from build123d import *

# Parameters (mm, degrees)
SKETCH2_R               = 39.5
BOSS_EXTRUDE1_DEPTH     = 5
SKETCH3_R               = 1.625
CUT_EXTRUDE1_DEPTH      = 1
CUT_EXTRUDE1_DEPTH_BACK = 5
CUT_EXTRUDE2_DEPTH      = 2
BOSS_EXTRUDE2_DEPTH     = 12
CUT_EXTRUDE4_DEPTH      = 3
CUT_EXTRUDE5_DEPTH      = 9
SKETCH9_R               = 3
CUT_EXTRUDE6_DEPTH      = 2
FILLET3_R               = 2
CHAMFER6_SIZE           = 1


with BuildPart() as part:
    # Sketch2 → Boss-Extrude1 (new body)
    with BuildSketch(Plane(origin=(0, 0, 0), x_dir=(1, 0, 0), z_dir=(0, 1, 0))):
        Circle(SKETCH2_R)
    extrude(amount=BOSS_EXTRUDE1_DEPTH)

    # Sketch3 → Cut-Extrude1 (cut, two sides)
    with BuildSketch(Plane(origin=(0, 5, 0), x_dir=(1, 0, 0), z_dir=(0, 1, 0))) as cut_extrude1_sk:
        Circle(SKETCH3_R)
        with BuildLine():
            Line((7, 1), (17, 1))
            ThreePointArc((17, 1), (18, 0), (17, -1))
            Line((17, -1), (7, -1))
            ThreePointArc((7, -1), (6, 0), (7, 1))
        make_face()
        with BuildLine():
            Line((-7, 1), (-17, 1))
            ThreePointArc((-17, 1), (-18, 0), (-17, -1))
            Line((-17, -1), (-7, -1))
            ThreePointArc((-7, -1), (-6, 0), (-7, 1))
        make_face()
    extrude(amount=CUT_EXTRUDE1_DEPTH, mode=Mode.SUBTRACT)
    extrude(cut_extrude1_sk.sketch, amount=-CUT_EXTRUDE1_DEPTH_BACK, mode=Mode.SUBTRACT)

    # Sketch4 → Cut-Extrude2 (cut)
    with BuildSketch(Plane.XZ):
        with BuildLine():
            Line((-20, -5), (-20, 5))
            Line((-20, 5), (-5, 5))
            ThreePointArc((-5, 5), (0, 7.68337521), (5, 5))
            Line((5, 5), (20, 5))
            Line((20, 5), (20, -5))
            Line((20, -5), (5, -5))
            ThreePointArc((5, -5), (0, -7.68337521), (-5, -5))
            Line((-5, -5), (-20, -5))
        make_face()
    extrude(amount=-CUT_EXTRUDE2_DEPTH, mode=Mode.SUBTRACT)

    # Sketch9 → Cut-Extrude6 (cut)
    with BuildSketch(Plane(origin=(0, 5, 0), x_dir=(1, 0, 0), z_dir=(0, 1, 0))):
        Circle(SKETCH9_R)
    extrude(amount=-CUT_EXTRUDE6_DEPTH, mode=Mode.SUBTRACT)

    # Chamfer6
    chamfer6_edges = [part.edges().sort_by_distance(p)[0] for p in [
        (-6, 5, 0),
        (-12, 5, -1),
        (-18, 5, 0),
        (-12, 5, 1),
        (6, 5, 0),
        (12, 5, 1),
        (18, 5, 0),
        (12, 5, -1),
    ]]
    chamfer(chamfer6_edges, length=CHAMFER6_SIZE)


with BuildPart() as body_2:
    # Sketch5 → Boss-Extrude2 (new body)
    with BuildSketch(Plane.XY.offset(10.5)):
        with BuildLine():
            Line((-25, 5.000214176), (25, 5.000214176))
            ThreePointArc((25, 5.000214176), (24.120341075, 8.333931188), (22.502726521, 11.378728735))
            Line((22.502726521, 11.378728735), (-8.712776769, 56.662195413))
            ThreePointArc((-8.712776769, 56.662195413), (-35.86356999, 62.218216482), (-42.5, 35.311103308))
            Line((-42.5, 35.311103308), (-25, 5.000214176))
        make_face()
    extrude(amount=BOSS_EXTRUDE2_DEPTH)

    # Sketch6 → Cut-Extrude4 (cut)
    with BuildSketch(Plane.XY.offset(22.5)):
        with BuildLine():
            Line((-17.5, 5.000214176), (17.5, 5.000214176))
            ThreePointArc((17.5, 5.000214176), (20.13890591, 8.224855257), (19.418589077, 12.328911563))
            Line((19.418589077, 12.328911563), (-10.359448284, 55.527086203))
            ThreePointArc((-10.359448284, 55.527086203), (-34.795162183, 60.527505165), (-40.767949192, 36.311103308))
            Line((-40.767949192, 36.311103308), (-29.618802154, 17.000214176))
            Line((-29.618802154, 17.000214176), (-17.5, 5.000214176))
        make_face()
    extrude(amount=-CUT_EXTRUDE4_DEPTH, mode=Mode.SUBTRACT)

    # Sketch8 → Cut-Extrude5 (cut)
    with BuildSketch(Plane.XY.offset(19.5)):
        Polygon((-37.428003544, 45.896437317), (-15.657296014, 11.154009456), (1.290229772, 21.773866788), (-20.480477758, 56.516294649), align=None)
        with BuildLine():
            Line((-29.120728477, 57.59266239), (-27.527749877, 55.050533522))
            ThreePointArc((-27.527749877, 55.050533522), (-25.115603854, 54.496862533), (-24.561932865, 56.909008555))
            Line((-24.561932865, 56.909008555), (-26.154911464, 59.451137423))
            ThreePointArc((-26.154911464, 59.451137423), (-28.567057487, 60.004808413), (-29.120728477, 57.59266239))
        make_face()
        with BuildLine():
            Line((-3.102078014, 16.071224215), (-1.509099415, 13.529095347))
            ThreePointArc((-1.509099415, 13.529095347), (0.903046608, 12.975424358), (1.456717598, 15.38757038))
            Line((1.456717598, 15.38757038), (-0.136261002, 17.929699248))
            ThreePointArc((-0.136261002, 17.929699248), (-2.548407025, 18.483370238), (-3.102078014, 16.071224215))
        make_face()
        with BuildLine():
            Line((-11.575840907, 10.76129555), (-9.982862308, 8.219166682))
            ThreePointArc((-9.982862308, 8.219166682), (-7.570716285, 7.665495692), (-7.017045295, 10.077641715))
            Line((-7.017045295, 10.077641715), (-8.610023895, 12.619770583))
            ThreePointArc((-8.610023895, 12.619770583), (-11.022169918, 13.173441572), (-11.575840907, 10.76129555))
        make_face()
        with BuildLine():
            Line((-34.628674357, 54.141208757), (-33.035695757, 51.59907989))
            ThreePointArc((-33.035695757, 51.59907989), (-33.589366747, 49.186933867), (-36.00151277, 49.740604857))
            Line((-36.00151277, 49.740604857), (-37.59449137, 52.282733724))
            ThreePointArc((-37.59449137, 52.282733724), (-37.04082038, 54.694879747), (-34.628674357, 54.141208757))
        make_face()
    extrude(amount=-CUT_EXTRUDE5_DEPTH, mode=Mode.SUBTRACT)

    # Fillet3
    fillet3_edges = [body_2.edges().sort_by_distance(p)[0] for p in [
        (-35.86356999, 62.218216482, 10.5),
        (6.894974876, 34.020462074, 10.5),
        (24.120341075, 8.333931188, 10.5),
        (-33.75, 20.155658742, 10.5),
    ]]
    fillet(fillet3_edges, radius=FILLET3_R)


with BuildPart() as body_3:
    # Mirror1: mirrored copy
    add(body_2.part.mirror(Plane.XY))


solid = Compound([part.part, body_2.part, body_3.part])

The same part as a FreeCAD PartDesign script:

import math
import FreeCAD as App
import Part
import Sketcher
from FreeCAD import Vector
Q = App.Units.Quantity


def edges_at(feature, points):
    """Names of the edges that pass closest to the given points."""
    edges = feature.Shape.Edges
    near = lambda p: min(range(len(edges)), key=lambda i: edges[i].distToShape(Part.Vertex(*p))[0])
    return sorted({f"Edge{near(p) + 1}" for p in points})


def add_polygon(sketch, points):
    """Adds a closed chain of lines whose ends are joined by coincident constraints."""
    first, n = sketch.GeometryCount, len(points)
    for a, b in zip(points, points[1:] + points[:1]):
        sketch.addGeometry(Part.LineSegment(App.Vector(*a, 0), App.Vector(*b, 0)), False)
    for i in range(n):
        sketch.addConstraint(Sketcher.Constraint("Coincident", first + i, 2, first + (i + 1) % n, 1))

doc = App.newDocument("Part")
params = doc.addObject("Spreadsheet::Sheet", "Params")
for row, (alias, value) in enumerate([
    ("sketch1_diameter", "79 mm"),
    ("pad1_length", "5 mm"),
    ("sketch2_radius", "1 mm"),
    ("sketch2_diameter", "3.25 mm"),
    ("sketch2_width", "10 mm"),
    ("sketch3_radius", "6 mm"),
    ("sketch3_width", "15 mm"),
    ("sketch3_height", "10 mm"),
    ("pocket2_length", "2 mm"),
    ("sketch4_diameter", "6 mm"),
    ("pocket3_length", "2 mm"),
    ("chamfer_size", "1 mm"),
    ("sketch5_radius", "15 mm"),
    ("sketch5_radius2", "20 mm"),
    ("sketch5_width", "50 mm"),
    ("sketch5_length", "55 mm"),
    ("sketch5_length2", "35 mm"),
    ("pad2_length", "12 mm"),
    ("sketch6_radius", "5 mm"),
    ("sketch6_radius2", "18 mm"),
    ("sketch6_width", "35 mm"),
    ("pocket4_length", "3 mm"),
    ("sketch7_radius", "1.75 mm"),
    ("sketch7_length", "41 mm"),
    ("sketch7_length2", "20 mm"),
    ("sketch7_length3", "3 mm"),
    ("pocket5_length", "9 mm"),
    ("fillet_radius", "2 mm"),
], start=1):
    params.set(f"A{row}", alias)
    params.set(f"B{row}", "=" + value)
    params.setAlias(f"B{row}", alias)

body = doc.addObject("PartDesign::Body", "Body")

# Sketch on XZ plane
sketch1 = body.newObject("Sketcher::SketchObject", "Sketch")
sketch1.AttachmentSupport = (doc.getObject("XZ_Plane"), [""])
sketch1.MapMode = "FlatFace"
sketch1.addGeometry(Part.Circle(Vector(0, 0, 0), Vector(0, 0, 1), 39.5), False)
sketch1.addConstraint([
    Sketcher.Constraint("Coincident", 0, 3, -1, 1),
    Sketcher.Constraint("Diameter", 0, Q("79 mm")),
])
sketch1.setExpression("Constraints[1]", "Params.sketch1_diameter")
pad1 = body.newObject("PartDesign::Pad", "Pad")
pad1.Profile = sketch1
pad1.setExpression("Length", "Params.pad1_length")
pad1.Reversed = True

# Sketch on XZ plane
sketch2 = body.newObject("Sketcher::SketchObject", "Sketch001")
sketch2.AttachmentSupport = (doc.getObject("XZ_Plane"), [""])
sketch2.MapMode = "FlatFace"
sketch2.AttachmentOffset = App.Placement(Vector(0, 0, -5), App.Rotation())
sketch2.addGeometry([
    Part.Circle(Vector(0, 0, 0), Vector(0, 0, 1), 1.625),  # 0
    Part.LineSegment(Vector(17, -1, 0), Vector(7, -1, 0)),  # 1
    Part.ArcOfCircle(Part.Circle(Vector(7, 0, 0), Vector(0, 0, 1), 1), math.radians(90), math.radians(270)),  # 2
    Part.LineSegment(Vector(7, 1, 0), Vector(17, 1, 0)),  # 3
    Part.ArcOfCircle(Part.Circle(Vector(17, 0, 0), Vector(0, 0, 1), 1), math.radians(-90), math.radians(90)),  # 4
    Part.LineSegment(Vector(-7, -1, 0), Vector(-17, -1, 0)),  # 5
    Part.ArcOfCircle(Part.Circle(Vector(-17, 0, 0), Vector(0, 0, 1), 1), math.radians(90), math.radians(270)),  # 6
    Part.LineSegment(Vector(-17, 1, 0), Vector(-7, 1, 0)),  # 7
    Part.ArcOfCircle(Part.Circle(Vector(-7, 0, 0), Vector(0, 0, 1), 1), math.radians(-90), math.radians(90)),  # 8
], False)
sketch2.addConstraint([
    Sketcher.Constraint("Tangent", 1, 2, 2, 2),
    Sketcher.Constraint("Tangent", 2, 1, 3, 1),
    Sketcher.Constraint("Tangent", 3, 2, 4, 2),
    Sketcher.Constraint("Tangent", 4, 1, 1, 1),
    Sketcher.Constraint("Tangent", 5, 2, 6, 2),
    Sketcher.Constraint("Tangent", 6, 1, 7, 1),
    Sketcher.Constraint("Tangent", 7, 2, 8, 2),
    Sketcher.Constraint("Tangent", 8, 1, 5, 1),
    Sketcher.Constraint("Horizontal", 1),
    Sketcher.Constraint("Horizontal", 3),
    Sketcher.Constraint("Horizontal", 5),
    Sketcher.Constraint("Horizontal", 7),
    Sketcher.Constraint("Coincident", 0, 3, -1, 1),
    Sketcher.Constraint("Equal", 4, 6),
    Sketcher.Constraint("Symmetric", 4, 3, 6, 3, -1, 1),
    Sketcher.Constraint("Symmetric", 2, 3, 8, 3, -2),
    Sketcher.Constraint("Radius", 2, Q("1 mm")),
    Sketcher.Constraint("Diameter", 0, Q("3.25 mm")),
    Sketcher.Constraint("DistanceX", 1, 2, 1, 1, Q("10 mm")),
    Sketcher.Constraint("DistanceX", -1, 1, 2, 3, Q("7 mm")),
])
sketch2.setExpression("Constraints[16]", "Params.sketch2_radius")
sketch2.setExpression("Constraints[17]", "Params.sketch2_diameter")
sketch2.setExpression("Constraints[18]", "Params.sketch2_width")
pocket1 = body.newObject("PartDesign::Pocket", "Pocket")
pocket1.Profile = sketch2
pocket1.Type = "ThroughAll"
pocket1.Midplane = True

# Sketch on XZ plane
sketch3 = body.newObject("Sketcher::SketchObject", "Sketch002")
sketch3.AttachmentSupport = (doc.getObject("XZ_Plane"), [""])
sketch3.MapMode = "FlatFace"
sketch3.addGeometry([
    Part.LineSegment(Vector(-20, 5, 0), Vector(-20, -5, 0)),  # 0
    Part.LineSegment(Vector(-20, -5, 0), Vector(-5, -5, 0)),  # 1
    Part.ArcOfCircle(Part.Circle(Vector(0, -1.683375, 0), Vector(0, 0, 1), 6), math.radians(-146.44269), math.radians(-33.55731)),  # 2
    Part.LineSegment(Vector(5, -5, 0), Vector(20, -5, 0)),  # 3
    Part.LineSegment(Vector(20, -5, 0), Vector(20, 5, 0)),  # 4
    Part.LineSegment(Vector(20, 5, 0), Vector(5, 5, 0)),  # 5
    Part.ArcOfCircle(Part.Circle(Vector(0, 1.683375, 0), Vector(0, 0, 1), 6), math.radians(33.55731), math.radians(146.44269)),  # 6
    Part.LineSegment(Vector(-5, 5, 0), Vector(-20, 5, 0)),  # 7
], False)
sketch3.addConstraint([
    Sketcher.Constraint("Coincident", 0, 2, 1, 1),
    Sketcher.Constraint("Coincident", 1, 2, 2, 1),
    Sketcher.Constraint("Coincident", 2, 2, 3, 1),
    Sketcher.Constraint("Coincident", 3, 2, 4, 1),
    Sketcher.Constraint("Coincident", 4, 2, 5, 1),
    Sketcher.Constraint("Coincident", 5, 2, 6, 1),
    Sketcher.Constraint("Coincident", 6, 2, 7, 1),
    Sketcher.Constraint("Coincident", 7, 2, 0, 1),
    Sketcher.Constraint("Vertical", 0),
    Sketcher.Constraint("Horizontal", 1),
    Sketcher.Constraint("Horizontal", 3),
    Sketcher.Constraint("Vertical", 4),
    Sketcher.Constraint("Horizontal", 5),
    Sketcher.Constraint("Horizontal", 7),
    Sketcher.Constraint("Equal", 2, 6),
    Sketcher.Constraint("Symmetric", 2, 3, 6, 3, -1, 1),
    Sketcher.Constraint("Symmetric", 0, 2, 4, 2, -1, 1),
    Sketcher.Constraint("Symmetric", 1, 2, 2, 2, -2),
    Sketcher.Constraint("Horizontal", 5, 2, 6, 2),
    Sketcher.Constraint("Radius", 2, Q("6 mm")),
    Sketcher.Constraint("DistanceX", 1, 1, 1, 2, Q("15 mm")),
    Sketcher.Constraint("DistanceY", 0, 2, 0, 1, Q("10 mm")),
    Sketcher.Constraint("DistanceX", 0, 2, -1, 1, Q("20 mm")),
])
sketch3.setExpression("Constraints[19]", "Params.sketch3_radius")
sketch3.setExpression("Constraints[20]", "Params.sketch3_width")
sketch3.setExpression("Constraints[21]", "Params.sketch3_height")
pocket2 = body.newObject("PartDesign::Pocket", "Pocket001")
pocket2.Profile = sketch3
pocket2.setExpression("Length", "Params.pocket2_length")

# Sketch on XZ plane
sketch4 = body.newObject("Sketcher::SketchObject", "Sketch003")
sketch4.AttachmentSupport = (doc.getObject("XZ_Plane"), [""])
sketch4.MapMode = "FlatFace"
sketch4.AttachmentOffset = App.Placement(Vector(0, 0, -5), App.Rotation())
sketch4.addGeometry(Part.Circle(Vector(0, 0, 0), Vector(0, 0, 1), 3), False)
sketch4.addConstraint([
    Sketcher.Constraint("Coincident", 0, 3, -1, 1),
    Sketcher.Constraint("Diameter", 0, Q("6 mm")),
])
sketch4.setExpression("Constraints[1]", "Params.sketch4_diameter")
pocket3 = body.newObject("PartDesign::Pocket", "Pocket002")
pocket3.Profile = sketch4
pocket3.setExpression("Length", "Params.pocket3_length")
pocket3.Reversed = True
doc.recompute()

chamfer = body.newObject("PartDesign::Chamfer", "Chamfer")
chamfer.Base = (pocket3, edges_at(pocket3, [
    (-6, 5, 0),
    (-12, 5, -1),
    (-18, 5, 0),
    (-12, 5, 1),
    (6, 5, 0),
    (12, 5, 1),
    (18, 5, 0),
    (12, 5, -1),
]))
chamfer.setExpression("Size", "Params.chamfer_size")
body2 = doc.addObject("PartDesign::Body", "Body001")

# Sketch on XY plane
sketch5 = body2.newObject("Sketcher::SketchObject", "Sketch004")
sketch5.AttachmentSupport = (doc.getObject("XY_Plane001"), [""])
sketch5.MapMode = "FlatFace"
sketch5.AttachmentOffset = App.Placement(Vector(0, 0, 10.5), App.Rotation())
sketch5.addGeometry([
    Part.LineSegment(Vector(-25, 5.000214, 0), Vector(25, 5.000214, 0)),  # 0
    Part.ArcOfCircle(Part.Circle(Vector(10.15269, 2.86541, 0), Vector(0, 0, 1), 15), math.radians(8.182134), math.radians(34.579876)),  # 1
    Part.LineSegment(Vector(22.502727, 11.378729, 0), Vector(-8.712777, 56.662195, 0)),  # 2
    Part.ArcOfCircle(Part.Circle(Vector(-25.179492, 45.311103, 0), Vector(0, 0, 1), 20), math.radians(34.579876), math.radians(210)),  # 3
    Part.LineSegment(Vector(-42.5, 35.311103, 0), Vector(-25, 5.000214, 0)),  # 4
], False)
sketch5.addConstraint([
    Sketcher.Constraint("Coincident", 0, 2, 1, 1),
    Sketcher.Constraint("Tangent", 1, 2, 2, 1),
    Sketcher.Constraint("Tangent", 2, 2, 3, 1),
    Sketcher.Constraint("Tangent", 3, 2, 4, 1),
    Sketcher.Constraint("Coincident", 4, 2, 0, 1),
    Sketcher.Constraint("Horizontal", 0),
    Sketcher.Constraint("Radius", 1, Q("15 mm")),
    Sketcher.Constraint("Radius", 3, Q("20 mm")),
    Sketcher.Constraint("DistanceX", 0, 1, 0, 2, Q("50 mm")),
    Sketcher.Constraint("Angle", 4, Q("-60 deg")),
    Sketcher.Constraint("Distance", 2, Q("55 mm")),
    Sketcher.Constraint("Distance", 4, Q("35 mm")),
    Sketcher.Constraint("DistanceX", -1, 1, 0, 2, Q("25 mm")),
    Sketcher.Constraint("DistanceY", -1, 1, 1, 3, Q("2.86541 mm")),
])
sketch5.setExpression("Constraints[6]", "Params.sketch5_radius")
sketch5.setExpression("Constraints[7]", "Params.sketch5_radius2")
sketch5.setExpression("Constraints[8]", "Params.sketch5_width")
sketch5.setExpression("Constraints[10]", "Params.sketch5_length")
sketch5.setExpression("Constraints[11]", "Params.sketch5_length2")
pad2 = body2.newObject("PartDesign::Pad", "Pad001")
pad2.Profile = sketch5
pad2.setExpression("Length", "Params.pad2_length")

# Sketch on XY plane
sketch6 = body2.newObject("Sketcher::SketchObject", "Sketch005")
sketch6.AttachmentSupport = (doc.getObject("XY_Plane001"), [""])
sketch6.MapMode = "FlatFace"
sketch6.AttachmentOffset = App.Placement(Vector(0, 0, 22.5), App.Rotation())
sketch6.addGeometry([
    Part.LineSegment(Vector(-17.5, 5.000214, 0), Vector(17.5, 5.000214, 0)),  # 0
    Part.ArcOfCircle(Part.Circle(Vector(15.30191, 9.491139, 0), Vector(0, 0, 1), 5), math.radians(-63.920493), math.radians(34.579876)),  # 1
    Part.LineSegment(Vector(19.418589, 12.328912, 0), Vector(-10.359448, 55.527086, 0)),  # 2
    Part.ArcOfCircle(Part.Circle(Vector(-25.179492, 45.311103, 0), Vector(0, 0, 1), 18), math.radians(34.579876), math.radians(210)),  # 3
    Part.LineSegment(Vector(-40.767949, 36.311103, 0), Vector(-29.618802, 17.000214, 0)),  # 4
    Part.LineSegment(Vector(-29.618802, 17.000214, 0), Vector(-17.5, 5.000214, 0)),  # 5
], False)
sketch6.addConstraint([
    Sketcher.Constraint("Coincident", 0, 2, 1, 1),
    Sketcher.Constraint("Tangent", 1, 2, 2, 1),
    Sketcher.Constraint("Tangent", 2, 2, 3, 1),
    Sketcher.Constraint("Tangent", 3, 2, 4, 1),
    Sketcher.Constraint("Coincident", 4, 2, 5, 1),
    Sketcher.Constraint("Coincident", 5, 2, 0, 1),
    Sketcher.Constraint("Horizontal", 0),
    Sketcher.Constraint("Radius", 1, Q("5 mm")),
    Sketcher.Constraint("Radius", 3, Q("18 mm")),
    Sketcher.Constraint("DistanceX", 0, 1, 0, 2, Q("35 mm")),
    Sketcher.Constraint("Angle", 4, Q("-60 deg")),
    Sketcher.Constraint("DistanceY", 0, 2, 4, 2, Q("12 mm")),
    Sketcher.Constraint("DistanceX", -1, 1, 0, 2, Q("17.5 mm")),
    Sketcher.Constraint("DistanceX", 3, 2, 2, 2, Q("30.408501 mm")),
    Sketcher.Constraint("DistanceX", -1, 1, 1, 3, Q("15.30191 mm")),
    Sketcher.Constraint("DistanceY", -1, 1, 1, 3, Q("9.491139 mm")),
    Sketcher.Constraint("DistanceX", 3, 3, -1, 1, Q("25.179492 mm")),
])
sketch6.setExpression("Constraints[7]", "Params.sketch6_radius")
sketch6.setExpression("Constraints[8]", "Params.sketch6_radius2")
sketch6.setExpression("Constraints[9]", "Params.sketch6_width")
pocket4 = body2.newObject("PartDesign::Pocket", "Pocket003")
pocket4.Profile = sketch6
pocket4.setExpression("Length", "Params.pocket4_length")

# Sketch on XY plane
sketch7 = body2.newObject("Sketcher::SketchObject", "Sketch006")
sketch7.AttachmentSupport = (doc.getObject("XY_Plane001"), [""])
sketch7.MapMode = "FlatFace"
sketch7.AttachmentOffset = App.Placement(Vector(0, 0, 19.5), App.Rotation())
add_polygon(sketch7, [(-37.428004, 45.896437), (-15.657296, 11.154009), (1.29023, 21.773867), (-20.480478, 56.516295)])  # lines 0-3
sketch7.addGeometry(Part.LineSegment(Vector(-29.120728, 57.592662, 0), Vector(-27.52775, 55.050534, 0)), False)  # 4
sketch7.addGeometry(Part.ArcOfCircle(Part.Circle(Vector(-26.044841, 55.979771, 0), Vector(0, 0, 1), 1.75), math.radians(-147.927437), math.radians(32.072563)), False)  # 5
sketch7.addGeometry(Part.LineSegment(Vector(-24.561933, 56.909009, 0), Vector(-26.154911, 59.451137, 0)), False)  # 6
sketch7.addGeometry(Part.ArcOfCircle(Part.Circle(Vector(-27.63782, 58.5219, 0), Vector(0, 0, 1), 1.75), math.radians(32.072563), math.radians(212.072563)), False)  # 7
sketch7.addGeometry(Part.LineSegment(Vector(-3.102078, 16.071224, 0), Vector(-1.509099, 13.529095, 0)), False)  # 8
sketch7.addGeometry(Part.ArcOfCircle(Part.Circle(Vector(-0.026191, 14.458333, 0), Vector(0, 0, 1), 1.75), math.radians(-147.927437), math.radians(32.072563)), False)  # 9
sketch7.addGeometry(Part.LineSegment(Vector(1.456718, 15.38757, 0), Vector(-0.136261, 17.929699, 0)), False)  # 10
sketch7.addGeometry(Part.ArcOfCircle(Part.Circle(Vector(-1.61917, 17.000462, 0), Vector(0, 0, 1), 1.75), math.radians(32.072563), math.radians(212.072563)), False)  # 11
sketch7.addGeometry(Part.LineSegment(Vector(-11.575841, 10.761296, 0), Vector(-9.982862, 8.219167, 0)), False)  # 12
sketch7.addGeometry(Part.ArcOfCircle(Part.Circle(Vector(-8.499954, 9.148404, 0), Vector(0, 0, 1), 1.75), math.radians(-147.927437), math.radians(32.072563)), False)  # 13
sketch7.addGeometry(Part.LineSegment(Vector(-7.017045, 10.077642, 0), Vector(-8.610024, 12.619771, 0)), False)  # 14
sketch7.addGeometry(Part.ArcOfCircle(Part.Circle(Vector(-10.092932, 11.690533, 0), Vector(0, 0, 1), 1.75), math.radians(32.072563), math.radians(212.072563)), False)  # 15
sketch7.addGeometry(Part.LineSegment(Vector(-33.035696, 51.59908, 0), Vector(-34.628674, 54.141209, 0)), False)  # 16
sketch7.addGeometry(Part.ArcOfCircle(Part.Circle(Vector(-36.111583, 53.211971, 0), Vector(0, 0, 1), 1.75), math.radians(32.072563), math.radians(212.072563)), False)  # 17
sketch7.addGeometry(Part.LineSegment(Vector(-37.594491, 52.282734, 0), Vector(-36.001513, 49.740605, 0)), False)  # 18
sketch7.addGeometry(Part.ArcOfCircle(Part.Circle(Vector(-34.518604, 50.669842, 0), Vector(0, 0, 1), 1.75), math.radians(-147.927437), math.radians(32.072563)), False)  # 19
sketch7.addConstraint([
    Sketcher.Constraint("Tangent", 4, 2, 5, 1),
    Sketcher.Constraint("Tangent", 5, 2, 6, 1),
    Sketcher.Constraint("Tangent", 6, 2, 7, 1),
    Sketcher.Constraint("Tangent", 7, 2, 4, 1),
    Sketcher.Constraint("Tangent", 8, 2, 9, 1),
    Sketcher.Constraint("Tangent", 9, 2, 10, 1),
    Sketcher.Constraint("Tangent", 10, 2, 11, 1),
    Sketcher.Constraint("Tangent", 11, 2, 8, 1),
    Sketcher.Constraint("Tangent", 12, 2, 13, 1),
    Sketcher.Constraint("Tangent", 13, 2, 14, 1),
    Sketcher.Constraint("Tangent", 14, 2, 15, 1),
    Sketcher.Constraint("Tangent", 15, 2, 12, 1),
    Sketcher.Constraint("Tangent", 16, 2, 17, 1),
    Sketcher.Constraint("Tangent", 17, 2, 18, 1),
    Sketcher.Constraint("Tangent", 18, 2, 19, 1),
    Sketcher.Constraint("Tangent", 19, 2, 16, 1),
    Sketcher.Constraint("Equal", 5, 7),
    Sketcher.Constraint("Equal", 7, 9),
    Sketcher.Constraint("Equal", 9, 11),
    Sketcher.Constraint("Equal", 11, 13),
    Sketcher.Constraint("Equal", 13, 15),
    Sketcher.Constraint("Equal", 15, 17),
    Sketcher.Constraint("Equal", 17, 19),
    Sketcher.Constraint("Perpendicular", 0, 1),
    Sketcher.Constraint("Perpendicular", 1, 2),
    Sketcher.Constraint("Perpendicular", 2, 3),
    Sketcher.Constraint("Perpendicular", 3, 4),
    Sketcher.Constraint("Parallel", 6, 8),
    Sketcher.Constraint("Parallel", 10, 12),
    Sketcher.Constraint("Parallel", 14, 16),
    Sketcher.Constraint("Equal", 6, 8),
    Sketcher.Constraint("Equal", 10, 12),
    Sketcher.Constraint("Equal", 14, 16),
    Sketcher.Constraint("Radius", 5, Q("1.75 mm")),
    Sketcher.Constraint("Distance", 0, Q("41 mm")),
    Sketcher.Constraint("Distance", 1, Q("20 mm")),
    Sketcher.Constraint("Distance", 4, Q("3 mm")),
    Sketcher.Constraint("DistanceY", -1, 1, 7, 3, Q("58.5219 mm")),
    Sketcher.Constraint("DistanceX", 8, 2, -1, 1, Q("1.509099 mm")),
    Sketcher.Constraint("DistanceY", -1, 1, 10, 2, Q("17.929699 mm")),
    Sketcher.Constraint("DistanceY", 15, 3, 9, 3, Q("2.7678 mm")),
    Sketcher.Constraint("DistanceY", 17, 3, 5, 3, Q("2.7678 mm")),
    Sketcher.Constraint("DistanceX", 11, 3, 1, 2, Q("2.909399 mm")),
    Sketcher.Constraint("DistanceX", 3, 2, 19, 3, Q("2.909399 mm")),
    Sketcher.Constraint("DistanceX", 5, 3, -1, 1, Q("26.044841 mm")),
    Sketcher.Constraint("DistanceY", -1, 1, 5, 3, Q("55.979771 mm")),
    Sketcher.Constraint("DistanceY", -1, 1, 0, 2, Q("11.154009 mm")),
    Sketcher.Constraint("DistanceX", 15, 2, -1, 1, Q("11.575841 mm")),
])
sketch7.setExpression("Constraints[37]", "Params.sketch7_radius")
sketch7.setExpression("Constraints[38]", "Params.sketch7_length")
sketch7.setExpression("Constraints[39]", "Params.sketch7_length2")
sketch7.setExpression("Constraints[40]", "Params.sketch7_length3")
pocket5 = body2.newObject("PartDesign::Pocket", "Pocket004")
pocket5.Profile = sketch7
pocket5.setExpression("Length", "Params.pocket5_length")
doc.recompute()

fillet = body2.newObject("PartDesign::Fillet", "Fillet")
fillet.Base = (pocket5, edges_at(pocket5, [
    (-35.864, 62.218, 10.5),
    (6.895, 34.02, 10.5),
    (24.12, 8.334, 10.5),
    (-33.75, 20.156, 10.5),
]))
fillet.setExpression("Radius", "Params.fillet_radius")
body3 = doc.addObject("PartDesign::Body", "Body002")
doc.recompute()

mirroring = doc.addObject("Part::Mirroring", "Mirroring")
mirroring.Source = body2
mirroring.Base = Vector(0, 0, 0)
mirroring.Normal = Vector(0, 0, 1)
body3.BaseFeature = mirroring
doc.recompute()
mirroring.Visibility = False

doc.recompute()
